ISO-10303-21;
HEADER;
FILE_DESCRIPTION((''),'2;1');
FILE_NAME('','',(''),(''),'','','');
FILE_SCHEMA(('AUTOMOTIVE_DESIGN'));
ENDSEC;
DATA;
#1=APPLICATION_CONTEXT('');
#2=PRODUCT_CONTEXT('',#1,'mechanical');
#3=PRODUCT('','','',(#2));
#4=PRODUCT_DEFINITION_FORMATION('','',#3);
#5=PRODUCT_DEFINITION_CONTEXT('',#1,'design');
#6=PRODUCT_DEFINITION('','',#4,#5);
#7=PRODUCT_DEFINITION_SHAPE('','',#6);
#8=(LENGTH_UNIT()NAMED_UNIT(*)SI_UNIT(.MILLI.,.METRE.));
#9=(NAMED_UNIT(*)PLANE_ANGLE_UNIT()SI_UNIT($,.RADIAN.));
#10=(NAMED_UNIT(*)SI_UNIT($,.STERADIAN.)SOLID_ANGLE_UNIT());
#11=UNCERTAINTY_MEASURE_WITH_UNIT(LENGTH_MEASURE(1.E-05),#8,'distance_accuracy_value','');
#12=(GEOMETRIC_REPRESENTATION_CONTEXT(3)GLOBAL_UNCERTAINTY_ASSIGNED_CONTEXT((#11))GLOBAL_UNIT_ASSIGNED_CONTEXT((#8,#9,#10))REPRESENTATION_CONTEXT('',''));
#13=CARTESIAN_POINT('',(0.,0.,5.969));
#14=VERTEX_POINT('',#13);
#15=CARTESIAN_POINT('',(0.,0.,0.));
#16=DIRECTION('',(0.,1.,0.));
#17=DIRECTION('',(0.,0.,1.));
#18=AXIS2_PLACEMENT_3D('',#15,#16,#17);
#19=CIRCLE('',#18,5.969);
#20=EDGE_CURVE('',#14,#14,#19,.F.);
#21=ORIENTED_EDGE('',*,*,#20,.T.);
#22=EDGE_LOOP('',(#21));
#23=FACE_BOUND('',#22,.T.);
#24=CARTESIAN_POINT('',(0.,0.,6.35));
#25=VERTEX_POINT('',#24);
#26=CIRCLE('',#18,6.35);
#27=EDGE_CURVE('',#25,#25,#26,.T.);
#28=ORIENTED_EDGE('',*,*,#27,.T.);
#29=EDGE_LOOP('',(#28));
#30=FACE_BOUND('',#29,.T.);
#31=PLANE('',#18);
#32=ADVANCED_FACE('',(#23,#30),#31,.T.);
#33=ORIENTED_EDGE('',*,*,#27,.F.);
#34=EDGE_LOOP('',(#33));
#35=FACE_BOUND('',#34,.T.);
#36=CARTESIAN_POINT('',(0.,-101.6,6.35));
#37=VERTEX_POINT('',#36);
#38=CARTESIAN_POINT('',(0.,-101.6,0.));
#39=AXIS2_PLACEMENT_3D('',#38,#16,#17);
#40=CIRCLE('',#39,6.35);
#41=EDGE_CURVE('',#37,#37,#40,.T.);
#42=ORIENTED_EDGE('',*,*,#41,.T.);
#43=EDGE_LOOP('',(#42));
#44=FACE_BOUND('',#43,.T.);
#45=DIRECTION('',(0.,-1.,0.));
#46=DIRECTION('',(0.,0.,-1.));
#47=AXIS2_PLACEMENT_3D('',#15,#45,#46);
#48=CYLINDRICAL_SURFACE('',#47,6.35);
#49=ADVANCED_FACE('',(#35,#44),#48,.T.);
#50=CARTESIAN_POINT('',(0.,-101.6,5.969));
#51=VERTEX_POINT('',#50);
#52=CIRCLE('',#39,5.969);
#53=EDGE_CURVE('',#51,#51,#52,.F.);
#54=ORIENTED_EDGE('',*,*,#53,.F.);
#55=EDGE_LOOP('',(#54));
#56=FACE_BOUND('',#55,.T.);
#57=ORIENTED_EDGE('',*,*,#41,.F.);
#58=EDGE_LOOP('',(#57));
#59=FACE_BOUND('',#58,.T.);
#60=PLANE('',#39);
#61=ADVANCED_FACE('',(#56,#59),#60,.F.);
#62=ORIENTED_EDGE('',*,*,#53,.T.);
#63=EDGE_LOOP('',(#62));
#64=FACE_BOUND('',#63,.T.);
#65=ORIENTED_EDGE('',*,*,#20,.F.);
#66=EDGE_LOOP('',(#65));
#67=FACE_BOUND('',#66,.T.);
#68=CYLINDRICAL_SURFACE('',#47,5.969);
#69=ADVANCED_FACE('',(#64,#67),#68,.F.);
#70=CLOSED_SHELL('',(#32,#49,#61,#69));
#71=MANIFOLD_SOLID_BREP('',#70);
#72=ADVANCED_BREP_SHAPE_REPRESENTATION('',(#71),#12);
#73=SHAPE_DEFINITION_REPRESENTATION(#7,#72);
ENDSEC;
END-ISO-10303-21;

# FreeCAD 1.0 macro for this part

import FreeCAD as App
import Part
import Sketcher
Q = App.Units.Quantity

doc = App.newDocument("Part")
body = doc.addObject("PartDesign::Body", "Body")

# Sketch on XZ plane
sketch1 = body.newObject("Sketcher::SketchObject", "Sketch")
sketch1.AttachmentSupport = (doc.getObject("XZ_Plane"), [""])
sketch1.MapMode = "FlatFace"
sketch1.addGeometry([
    Part.Circle(App.Vector(0, 0, 0), App.Vector(0, 0, 1), 6.35),
    Part.Circle(App.Vector(0, 0, 0), App.Vector(0, 0, 1), 5.969),
], False)
sketch1.addConstraint([
    Sketcher.Constraint("Coincident", 0, 3, -1, 1),
    Sketcher.Constraint("Coincident", 1, 3, -1, 1),
    Sketcher.Constraint("Diameter", 0, Q("0.5 in")),
    Sketcher.Constraint("Diameter", 1, Q("0.47 in")),
])

# Sketch on XY plane
sketch2 = body.newObject("Sketcher::SketchObject", "Sketch001")
sketch2.AttachmentSupport = (doc.getObject("XY_Plane"), [""])
sketch2.MapMode = "FlatFace"
sketch2.addGeometry(Part.LineSegment(App.Vector(0, 0, 0), App.Vector(0, -101.6, 0)), False)
sketch2.addConstraint([
    Sketcher.Constraint("Vertical", 0),
    Sketcher.Constraint("Coincident", 0, 1, -1, 1),
    Sketcher.Constraint("DistanceY", 0, 2, 0, 1, Q("4 in")),
])
doc.recompute()

additivepipe = body.newObject("PartDesign::AdditivePipe", "AdditivePipe")
additivepipe.Profile = sketch1
additivepipe.Spine = (sketch2, ["Edge1"])

doc.recompute()
